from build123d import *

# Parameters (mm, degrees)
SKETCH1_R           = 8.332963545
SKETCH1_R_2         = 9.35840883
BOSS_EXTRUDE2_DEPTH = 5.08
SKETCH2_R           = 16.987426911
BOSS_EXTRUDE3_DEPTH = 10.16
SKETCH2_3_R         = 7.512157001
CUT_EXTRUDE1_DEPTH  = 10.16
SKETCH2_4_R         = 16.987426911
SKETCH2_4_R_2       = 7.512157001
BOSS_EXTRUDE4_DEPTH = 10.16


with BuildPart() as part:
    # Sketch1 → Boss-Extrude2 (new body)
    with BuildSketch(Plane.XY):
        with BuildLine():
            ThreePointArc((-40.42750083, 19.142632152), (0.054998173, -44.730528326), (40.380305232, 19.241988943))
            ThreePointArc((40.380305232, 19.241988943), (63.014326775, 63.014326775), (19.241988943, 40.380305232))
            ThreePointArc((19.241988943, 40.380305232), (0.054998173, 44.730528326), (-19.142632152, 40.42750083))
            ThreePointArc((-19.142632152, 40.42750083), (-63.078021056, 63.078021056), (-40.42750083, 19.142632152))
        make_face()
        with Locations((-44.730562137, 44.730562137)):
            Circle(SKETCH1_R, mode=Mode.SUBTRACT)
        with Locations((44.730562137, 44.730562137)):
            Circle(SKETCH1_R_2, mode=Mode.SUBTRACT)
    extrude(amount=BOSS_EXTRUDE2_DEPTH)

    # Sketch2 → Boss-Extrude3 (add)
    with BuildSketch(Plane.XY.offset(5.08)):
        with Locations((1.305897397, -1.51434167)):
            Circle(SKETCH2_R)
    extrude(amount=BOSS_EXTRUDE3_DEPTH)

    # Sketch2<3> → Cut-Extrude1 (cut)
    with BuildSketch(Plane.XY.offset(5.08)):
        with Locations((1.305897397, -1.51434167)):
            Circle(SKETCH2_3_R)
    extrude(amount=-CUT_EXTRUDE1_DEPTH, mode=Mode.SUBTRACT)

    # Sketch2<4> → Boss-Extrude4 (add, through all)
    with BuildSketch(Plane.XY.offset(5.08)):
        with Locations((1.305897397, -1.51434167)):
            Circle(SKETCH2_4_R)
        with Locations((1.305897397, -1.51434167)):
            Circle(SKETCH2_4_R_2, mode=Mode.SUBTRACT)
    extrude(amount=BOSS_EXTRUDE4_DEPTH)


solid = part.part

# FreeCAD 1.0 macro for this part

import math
import FreeCAD as App
import Part
import Sketcher

V = App.Vector

doc = App.newDocument("Part")
params = doc.addObject("Spreadsheet::Sheet", "Params")
for row, (alias, value) in enumerate([
    ("pad1_length", "0.2 in"),
    ("pad2_length", "0.4 in"),
    ("pocket1_length", "0.4 in"),
], start=1):
    params.set(f"A{row}", alias)
    params.set(f"B{row}", "=" + value)
    params.setAlias(f"B{row}", alias)

body = doc.addObject("PartDesign::Body", "Body")

sketch1 = doc.addObject("Sketcher::SketchObject", "Sketch")
body.addObject(sketch1)
sketch1.AttachmentSupport = (doc.XY_Plane, [""])
sketch1.MapMode = "FlatFace"
sketch1.addGeometry([
    Part.ArcOfCircle(Part.Circle(V(0, 0, 0), V(0, 0, 1), 45), math.radians(155), math.radians(385)),
    Part.ArcOfCircle(Part.Circle(V(45, 45, 0), V(0, 0, 1), 26), math.radians(-100), math.radians(190)),
    Part.ArcOfCircle(Part.Circle(V(0, 0, 0), V(0, 0, 1), 45), math.radians(65), math.radians(115)),
    Part.ArcOfCircle(Part.Circle(V(-45, 45, 0), V(0, 0, 1), 26), math.radians(-10), math.radians(280)),
    Part.Circle(V(-45, 45, 0), V(0, 0, 1), 8),
    Part.Circle(V(45, 45, 0), V(0, 0, 1), 9),
], False)
sketch1.addConstraint([
    Sketcher.Constraint("Coincident", 0, 2, 1, 1),
    Sketcher.Constraint("Coincident", 1, 2, 2, 1),
    Sketcher.Constraint("Coincident", 2, 2, 3, 1),
    Sketcher.Constraint("Coincident", 3, 2, 0, 1),
    Sketcher.Constraint("Coincident", 0, 3, -1, 1),
    Sketcher.Constraint("Coincident", 2, 3, -1, 1),
    Sketcher.Constraint("Coincident", 4, 3, 3, 3),
    Sketcher.Constraint("Coincident", 5, 3, 1, 3),
    Sketcher.Constraint("Equal", 0, 2),
    Sketcher.Constraint("Symmetric", 1, 3, 3, 3, -2),
    Sketcher.Constraint("Diameter", 4, 16.665927),
    Sketcher.Constraint("Diameter", 5, 18.716818),
    Sketcher.Constraint("Radius", 0, 44.730562),
    Sketcher.Constraint("Radius", 1, 25.857148),
    Sketcher.Constraint("Radius", 3, 25.947225),
    Sketcher.Constraint("DistanceY", -1, 1, 2, 2, 40.427501),
    Sketcher.Constraint("DistanceX", 3, 2, -1, 1, 40.427501),
])
pad1 = doc.addObject("PartDesign::Pad", "Pad")
body.addObject(pad1)
pad1.Profile = sketch1
pad1.setExpression("Length", "Params.pad1_length")

sketch2 = doc.addObject("Sketcher::SketchObject", "Sketch001")
body.addObject(sketch2)
sketch2.AttachmentSupport = (doc.XY_Plane, [""])
sketch2.MapMode = "FlatFace"
sketch2.AttachmentOffset = App.Placement(V(0, 0, 0.2 * 25.4), App.Rotation())
sketch2.addGeometry(Part.Circle(V(1, -2, 0), V(0, 0, 1), 17), False)
sketch2.addConstraint([
    Sketcher.Constraint("Diameter", 0, 33.974854),
    Sketcher.Constraint("DistanceY", 0, 3, -1, 1, 1.514342),
    Sketcher.Constraint("DistanceX", -1, 1, 0, 3, 1.305897),
])
pad2 = doc.addObject("PartDesign::Pad", "Pad001")
body.addObject(pad2)
pad2.Profile = sketch2
pad2.setExpression("Length", "Params.pad2_length")

sketch3 = doc.addObject("Sketcher::SketchObject", "Sketch002")
body.addObject(sketch3)
sketch3.AttachmentSupport = (doc.XY_Plane, [""])
sketch3.MapMode = "FlatFace"
sketch3.AttachmentOffset = App.Placement(V(0, 0, 0.2 * 25.4), App.Rotation())
sketch3.addGeometry(Part.Circle(V(1, -2, 0), V(0, 0, 1), 8), False)
sketch3.addConstraint([
    Sketcher.Constraint("Diameter", 0, 15.024314),
    Sketcher.Constraint("DistanceY", 0, 3, -1, 1, 1.514342),
    Sketcher.Constraint("DistanceX", -1, 1, 0, 3, 1.305897),
])
pocket1 = doc.addObject("PartDesign::Pocket", "Pocket")
body.addObject(pocket1)
pocket1.Profile = sketch3
pocket1.setExpression("Length", "Params.pocket1_length")

sketch4 = doc.addObject("Sketcher::SketchObject", "Sketch003")
body.addObject(sketch4)
sketch4.AttachmentSupport = (doc.XY_Plane, [""])
sketch4.MapMode = "FlatFace"
sketch4.AttachmentOffset = App.Placement(V(0, 0, 0.2 * 25.4), App.Rotation())
sketch4.addGeometry([
    Part.Circle(V(1, -2, 0), V(0, 0, 1), 17),
    Part.Circle(V(1, -2, 0), V(0, 0, 1), 8),
], False)
sketch4.addConstraint([
    Sketcher.Constraint("Coincident", 1, 3, 0, 3),
    Sketcher.Constraint("Diameter", 0, 33.974854),
    Sketcher.Constraint("Diameter", 1, 15.024314),
    Sketcher.Constraint("DistanceY", 0, 3, -1, 1, 1.514342),
    Sketcher.Constraint("DistanceX", -1, 1, 0, 3, 1.305897),
])
pad3 = doc.addObject("PartDesign::Pad", "Pad002")
body.addObject(pad3)
pad3.Profile = sketch4
pad3.Type = "UpToLast"

doc.recompute()
